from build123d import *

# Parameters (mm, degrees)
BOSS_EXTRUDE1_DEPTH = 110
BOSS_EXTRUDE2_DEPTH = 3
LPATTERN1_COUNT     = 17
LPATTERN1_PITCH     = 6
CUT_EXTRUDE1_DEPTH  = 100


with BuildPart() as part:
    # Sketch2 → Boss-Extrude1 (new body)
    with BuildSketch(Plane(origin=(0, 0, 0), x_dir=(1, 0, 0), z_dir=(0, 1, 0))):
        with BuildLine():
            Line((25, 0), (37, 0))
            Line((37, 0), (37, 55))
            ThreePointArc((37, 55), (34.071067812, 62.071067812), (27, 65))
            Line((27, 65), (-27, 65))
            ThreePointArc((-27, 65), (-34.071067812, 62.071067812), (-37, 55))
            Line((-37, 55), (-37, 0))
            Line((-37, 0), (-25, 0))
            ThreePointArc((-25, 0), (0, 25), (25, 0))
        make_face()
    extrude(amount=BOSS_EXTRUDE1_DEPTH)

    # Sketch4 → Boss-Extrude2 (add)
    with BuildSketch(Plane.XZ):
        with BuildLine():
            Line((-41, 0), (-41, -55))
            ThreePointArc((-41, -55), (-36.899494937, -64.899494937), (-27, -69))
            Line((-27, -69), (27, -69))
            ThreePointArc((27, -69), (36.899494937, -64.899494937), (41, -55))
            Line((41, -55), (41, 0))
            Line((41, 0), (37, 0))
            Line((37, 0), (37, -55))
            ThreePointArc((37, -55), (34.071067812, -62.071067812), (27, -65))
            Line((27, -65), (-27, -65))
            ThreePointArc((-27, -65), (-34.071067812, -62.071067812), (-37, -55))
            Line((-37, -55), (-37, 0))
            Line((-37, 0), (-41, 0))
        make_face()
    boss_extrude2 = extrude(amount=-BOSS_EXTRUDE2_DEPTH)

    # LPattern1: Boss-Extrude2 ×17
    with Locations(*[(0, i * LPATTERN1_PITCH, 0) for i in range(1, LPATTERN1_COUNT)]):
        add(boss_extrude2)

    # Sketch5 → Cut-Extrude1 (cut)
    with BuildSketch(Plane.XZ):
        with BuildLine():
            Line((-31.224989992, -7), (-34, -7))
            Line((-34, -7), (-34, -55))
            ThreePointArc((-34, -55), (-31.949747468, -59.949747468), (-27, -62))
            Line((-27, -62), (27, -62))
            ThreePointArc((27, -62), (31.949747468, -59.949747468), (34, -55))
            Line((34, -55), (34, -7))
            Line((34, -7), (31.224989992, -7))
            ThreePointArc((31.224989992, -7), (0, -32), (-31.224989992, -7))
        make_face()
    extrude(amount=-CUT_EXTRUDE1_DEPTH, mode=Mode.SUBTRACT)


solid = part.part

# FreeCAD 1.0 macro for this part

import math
import FreeCAD as App
import Part
import Sketcher

doc = App.newDocument("Part")
body = doc.addObject("PartDesign::Body", "Body")

# Sketch on XZ plane
sketch1 = doc.addObject("Sketcher::SketchObject", "Sketch")
body.addObject(sketch1)
sketch1.AttachmentSupport = (doc.XZ_Plane, [""])
sketch1.MapMode = "FlatFace"
sketch1.addGeometry(Part.LineSegment(App.Vector(25, 0, 0), App.Vector(37, 0, 0)), False)
sketch1.addGeometry(Part.LineSegment(App.Vector(37, 0, 0), App.Vector(37, -55, 0)), False)
sketch1.addGeometry(Part.ArcOfCircle(Part.Circle(App.Vector(27, -55, 0), App.Vector(0, 0, 1), 10), math.radians(-90), math.radians(0)), False)
sketch1.addGeometry(Part.LineSegment(App.Vector(27, -65, 0), App.Vector(-27, -65, 0)), False)
sketch1.addGeometry(Part.ArcOfCircle(Part.Circle(App.Vector(-27, -55, 0), App.Vector(0, 0, 1), 10), math.radians(180), math.radians(270)), False)
sketch1.addGeometry(Part.LineSegment(App.Vector(-37, -55, 0), App.Vector(-37, 0, 0)), False)
sketch1.addGeometry(Part.LineSegment(App.Vector(-37, 0, 0), App.Vector(-25, 0, 0)), False)
sketch1.addGeometry(Part.ArcOfCircle(Part.Circle(App.Vector(0, 0, 0), App.Vector(0, 0, 1), 25), math.radians(180), math.radians(360)), False)
sketch1.addConstraint(Sketcher.Constraint("Coincident", 0, 2, 1, 1))
sketch1.addConstraint(Sketcher.Constraint("Tangent", 1, 2, 2, 2))
sketch1.addConstraint(Sketcher.Constraint("Tangent", 2, 1, 3, 1))
sketch1.addConstraint(Sketcher.Constraint("Tangent", 3, 2, 4, 2))
sketch1.addConstraint(Sketcher.Constraint("Tangent", 4, 1, 5, 1))
sketch1.addConstraint(Sketcher.Constraint("Coincident", 5, 2, 6, 1))
sketch1.addConstraint(Sketcher.Constraint("Coincident", 6, 2, 7, 1))
sketch1.addConstraint(Sketcher.Constraint("Coincident", 7, 2, 0, 1))
sketch1.addConstraint(Sketcher.Constraint("Horizontal", 0))
sketch1.addConstraint(Sketcher.Constraint("Vertical", 1))
sketch1.addConstraint(Sketcher.Constraint("Horizontal", 3))
sketch1.addConstraint(Sketcher.Constraint("Vertical", 5))
sketch1.addConstraint(Sketcher.Constraint("Horizontal", 6))
sketch1.addConstraint(Sketcher.Constraint("Coincident", 7, 3, -1, 1))
sketch1.addConstraint(Sketcher.Constraint("Equal", 2, 4))
sketch1.addConstraint(Sketcher.Constraint("Symmetric", 0, 2, 5, 2, -1, 1))
sketch1.addConstraint(Sketcher.Constraint("PointOnObject", 0, 2, -1))
sketch1.addConstraint(Sketcher.Constraint("Radius", 2, 10.0))
sketch1.addConstraint(Sketcher.Constraint("Radius", 7, 25.0))
sketch1.addConstraint(Sketcher.Constraint("DistanceX", 0, 1, 0, 2, 12.0))
sketch1.addConstraint(Sketcher.Constraint("DistanceY", 1, 2, 1, 1, 55.0))
pad1 = doc.addObject("PartDesign::Pad", "Pad")
body.addObject(pad1)
pad1.Profile = sketch1
pad1.Length = 110
pad1.Reversed = True

# Sketch on XZ plane
sketch2 = doc.addObject("Sketcher::SketchObject", "Sketch001")
body.addObject(sketch2)
sketch2.AttachmentSupport = (doc.XZ_Plane, [""])
sketch2.MapMode = "FlatFace"
sketch2.addGeometry(Part.LineSegment(App.Vector(-41, 0, 0), App.Vector(-41, -55, 0)), False)
sketch2.addGeometry(Part.ArcOfCircle(Part.Circle(App.Vector(-27, -55, 0), App.Vector(0, 0, 1), 14), math.radians(180), math.radians(270)), False)
sketch2.addGeometry(Part.LineSegment(App.Vector(-27, -69, 0), App.Vector(27, -69, 0)), False)
sketch2.addGeometry(Part.ArcOfCircle(Part.Circle(App.Vector(27, -55, 0), App.Vector(0, 0, 1), 14), math.radians(-90), math.radians(0)), False)
sketch2.addGeometry(Part.LineSegment(App.Vector(41, -55, 0), App.Vector(41, 0, 0)), False)
sketch2.addGeometry(Part.LineSegment(App.Vector(41, 0, 0), App.Vector(37, 0, 0)), False)
sketch2.addGeometry(Part.LineSegment(App.Vector(37, 0, 0), App.Vector(37, -55, 0)), False)
sketch2.addGeometry(Part.ArcOfCircle(Part.Circle(App.Vector(27, -55, 0), App.Vector(0, 0, 1), 10), math.radians(-90), math.radians(0)), False)
sketch2.addGeometry(Part.LineSegment(App.Vector(27, -65, 0), App.Vector(-27, -65, 0)), False)
sketch2.addGeometry(Part.ArcOfCircle(Part.Circle(App.Vector(-27, -55, 0), App.Vector(0, 0, 1), 10), math.radians(180), math.radians(270)), False)
sketch2.addGeometry(Part.LineSegment(App.Vector(-37, -55, 0), App.Vector(-37, 0, 0)), False)
sketch2.addGeometry(Part.LineSegment(App.Vector(-37, 0, 0), App.Vector(-41, 0, 0)), False)
sketch2.addConstraint(Sketcher.Constraint("Tangent", 0, 2, 1, 1))
sketch2.addConstraint(Sketcher.Constraint("Tangent", 1, 2, 2, 1))
sketch2.addConstraint(Sketcher.Constraint("Tangent", 2, 2, 3, 1))
sketch2.addConstraint(Sketcher.Constraint("Tangent", 3, 2, 4, 1))
sketch2.addConstraint(Sketcher.Constraint("Coincident", 4, 2, 5, 1))
sketch2.addConstraint(Sketcher.Constraint("Coincident", 5, 2, 6, 1))
sketch2.addConstraint(Sketcher.Constraint("Tangent", 6, 2, 7, 2))
sketch2.addConstraint(Sketcher.Constraint("Tangent", 7, 1, 8, 1))
sketch2.addConstraint(Sketcher.Constraint("Tangent", 8, 2, 9, 2))
sketch2.addConstraint(Sketcher.Constraint("Tangent", 9, 1, 10, 1))
sketch2.addConstraint(Sketcher.Constraint("Coincident", 10, 2, 11, 1))
sketch2.addConstraint(Sketcher.Constraint("Coincident", 11, 2, 0, 1))
sketch2.addConstraint(Sketcher.Constraint("Vertical", 0))
sketch2.addConstraint(Sketcher.Constraint("Horizontal", 2))
sketch2.addConstraint(Sketcher.Constraint("Vertical", 4))
sketch2.addConstraint(Sketcher.Constraint("Horizontal", 5))
sketch2.addConstraint(Sketcher.Constraint("Vertical", 6))
sketch2.addConstraint(Sketcher.Constraint("Horizontal", 8))
sketch2.addConstraint(Sketcher.Constraint("Vertical", 10))
sketch2.addConstraint(Sketcher.Constraint("Horizontal", 11))
sketch2.addConstraint(Sketcher.Constraint("Coincident", 7, 3, 3, 3))
sketch2.addConstraint(Sketcher.Constraint("Coincident", 9, 3, 1, 3))
sketch2.addConstraint(Sketcher.Constraint("Equal", 1, 3))
sketch2.addConstraint(Sketcher.Constraint("Symmetric", 5, 2, 10, 2, -1, 1))
sketch2.addConstraint(Sketcher.Constraint("PointOnObject", 4, 2, -1))
sketch2.addConstraint(Sketcher.Constraint("Radius", 1, 14.0))
sketch2.addConstraint(Sketcher.Constraint("Radius", 7, 10.0))
sketch2.addConstraint(Sketcher.Constraint("DistanceX", 2, 1, 2, 2, 54.0))
sketch2.addConstraint(Sketcher.Constraint("DistanceY", 0, 2, 0, 1, 55.0))
pad2 = doc.addObject("PartDesign::Pad", "Pad001")
body.addObject(pad2)
pad2.Profile = sketch2
pad2.Length = 3
pad2.Reversed = True
doc.recompute()

linearpattern = doc.addObject("PartDesign::LinearPattern", "LinearPattern")
body.addObject(linearpattern)
linearpattern.Originals = [pad2]
linearpattern.Direction = (doc.Y_Axis, [""])
linearpattern.Mode = "offset"
linearpattern.Offset = 6
linearpattern.Occurrences = 17
body.Tip = linearpattern

# Sketch on XZ plane
sketch3 = doc.addObject("Sketcher::SketchObject", "Sketch002")
body.addObject(sketch3)
sketch3.AttachmentSupport = (doc.XZ_Plane, [""])
sketch3.MapMode = "FlatFace"
sketch3.addGeometry(Part.LineSegment(App.Vector(-31.22499, -7, 0), App.Vector(-34, -7, 0)), False)
sketch3.addGeometry(Part.LineSegment(App.Vector(-34, -7, 0), App.Vector(-34, -55, 0)), False)
sketch3.addGeometry(Part.ArcOfCircle(Part.Circle(App.Vector(-27, -55, 0), App.Vector(0, 0, 1), 7), math.radians(-180), math.radians(-90)), False)
sketch3.addGeometry(Part.LineSegment(App.Vector(-27, -62, 0), App.Vector(27, -62, 0)), False)
sketch3.addGeometry(Part.ArcOfCircle(Part.Circle(App.Vector(27, -55, 0), App.Vector(0, 0, 1), 7), math.radians(-90), math.radians(0)), False)
sketch3.addGeometry(Part.LineSegment(App.Vector(34, -55, 0), App.Vector(34, -7, 0)), False)
sketch3.addGeometry(Part.LineSegment(App.Vector(34, -7, 0), App.Vector(31.22499, -7, 0)), False)
sketch3.addGeometry(Part.ArcOfCircle(Part.Circle(App.Vector(0, 0, 0), App.Vector(0, 0, 1), 32), math.radians(-167.364375), math.radians(-12.635625)), False)
sketch3.addConstraint(Sketcher.Constraint("Coincident", 0, 2, 1, 1))
sketch3.addConstraint(Sketcher.Constraint("Tangent", 1, 2, 2, 1))
sketch3.addConstraint(Sketcher.Constraint("Tangent", 2, 2, 3, 1))
sketch3.addConstraint(Sketcher.Constraint("Tangent", 3, 2, 4, 1))
sketch3.addConstraint(Sketcher.Constraint("Tangent", 4, 2, 5, 1))
sketch3.addConstraint(Sketcher.Constraint("Coincident", 5, 2, 6, 1))
sketch3.addConstraint(Sketcher.Constraint("Coincident", 6, 2, 7, 2))
sketch3.addConstraint(Sketcher.Constraint("Coincident", 7, 1, 0, 1))
sketch3.addConstraint(Sketcher.Constraint("Horizontal", 0))
sketch3.addConstraint(Sketcher.Constraint("Vertical", 1))
sketch3.addConstraint(Sketcher.Constraint("Horizontal", 3))
sketch3.addConstraint(Sketcher.Constraint("Vertical", 5))
sketch3.addConstraint(Sketcher.Constraint("Horizontal", 6))
sketch3.addConstraint(Sketcher.Constraint("Coincident", 7, 3, -1, 1))
sketch3.addConstraint(Sketcher.Constraint("Equal", 2, 4))
sketch3.addConstraint(Sketcher.Constraint("Symmetric", 0, 2, 5, 2, -2))
sketch3.addConstraint(Sketcher.Constraint("Radius", 2, 7.0))
sketch3.addConstraint(Sketcher.Constraint("Radius", 7, 32.0))
sketch3.addConstraint(Sketcher.Constraint("DistanceX", 3, 1, 3, 2, 54.0))
sketch3.addConstraint(Sketcher.Constraint("DistanceY", 1, 2, 1, 1, 48.0))
sketch3.addConstraint(Sketcher.Constraint("DistanceY", 2, 3, -1, 1, 55.0))
pocket1 = doc.addObject("PartDesign::Pocket", "Pocket")
body.addObject(pocket1)
pocket1.Profile = sketch3
pocket1.Length = 100

doc.recompute()
